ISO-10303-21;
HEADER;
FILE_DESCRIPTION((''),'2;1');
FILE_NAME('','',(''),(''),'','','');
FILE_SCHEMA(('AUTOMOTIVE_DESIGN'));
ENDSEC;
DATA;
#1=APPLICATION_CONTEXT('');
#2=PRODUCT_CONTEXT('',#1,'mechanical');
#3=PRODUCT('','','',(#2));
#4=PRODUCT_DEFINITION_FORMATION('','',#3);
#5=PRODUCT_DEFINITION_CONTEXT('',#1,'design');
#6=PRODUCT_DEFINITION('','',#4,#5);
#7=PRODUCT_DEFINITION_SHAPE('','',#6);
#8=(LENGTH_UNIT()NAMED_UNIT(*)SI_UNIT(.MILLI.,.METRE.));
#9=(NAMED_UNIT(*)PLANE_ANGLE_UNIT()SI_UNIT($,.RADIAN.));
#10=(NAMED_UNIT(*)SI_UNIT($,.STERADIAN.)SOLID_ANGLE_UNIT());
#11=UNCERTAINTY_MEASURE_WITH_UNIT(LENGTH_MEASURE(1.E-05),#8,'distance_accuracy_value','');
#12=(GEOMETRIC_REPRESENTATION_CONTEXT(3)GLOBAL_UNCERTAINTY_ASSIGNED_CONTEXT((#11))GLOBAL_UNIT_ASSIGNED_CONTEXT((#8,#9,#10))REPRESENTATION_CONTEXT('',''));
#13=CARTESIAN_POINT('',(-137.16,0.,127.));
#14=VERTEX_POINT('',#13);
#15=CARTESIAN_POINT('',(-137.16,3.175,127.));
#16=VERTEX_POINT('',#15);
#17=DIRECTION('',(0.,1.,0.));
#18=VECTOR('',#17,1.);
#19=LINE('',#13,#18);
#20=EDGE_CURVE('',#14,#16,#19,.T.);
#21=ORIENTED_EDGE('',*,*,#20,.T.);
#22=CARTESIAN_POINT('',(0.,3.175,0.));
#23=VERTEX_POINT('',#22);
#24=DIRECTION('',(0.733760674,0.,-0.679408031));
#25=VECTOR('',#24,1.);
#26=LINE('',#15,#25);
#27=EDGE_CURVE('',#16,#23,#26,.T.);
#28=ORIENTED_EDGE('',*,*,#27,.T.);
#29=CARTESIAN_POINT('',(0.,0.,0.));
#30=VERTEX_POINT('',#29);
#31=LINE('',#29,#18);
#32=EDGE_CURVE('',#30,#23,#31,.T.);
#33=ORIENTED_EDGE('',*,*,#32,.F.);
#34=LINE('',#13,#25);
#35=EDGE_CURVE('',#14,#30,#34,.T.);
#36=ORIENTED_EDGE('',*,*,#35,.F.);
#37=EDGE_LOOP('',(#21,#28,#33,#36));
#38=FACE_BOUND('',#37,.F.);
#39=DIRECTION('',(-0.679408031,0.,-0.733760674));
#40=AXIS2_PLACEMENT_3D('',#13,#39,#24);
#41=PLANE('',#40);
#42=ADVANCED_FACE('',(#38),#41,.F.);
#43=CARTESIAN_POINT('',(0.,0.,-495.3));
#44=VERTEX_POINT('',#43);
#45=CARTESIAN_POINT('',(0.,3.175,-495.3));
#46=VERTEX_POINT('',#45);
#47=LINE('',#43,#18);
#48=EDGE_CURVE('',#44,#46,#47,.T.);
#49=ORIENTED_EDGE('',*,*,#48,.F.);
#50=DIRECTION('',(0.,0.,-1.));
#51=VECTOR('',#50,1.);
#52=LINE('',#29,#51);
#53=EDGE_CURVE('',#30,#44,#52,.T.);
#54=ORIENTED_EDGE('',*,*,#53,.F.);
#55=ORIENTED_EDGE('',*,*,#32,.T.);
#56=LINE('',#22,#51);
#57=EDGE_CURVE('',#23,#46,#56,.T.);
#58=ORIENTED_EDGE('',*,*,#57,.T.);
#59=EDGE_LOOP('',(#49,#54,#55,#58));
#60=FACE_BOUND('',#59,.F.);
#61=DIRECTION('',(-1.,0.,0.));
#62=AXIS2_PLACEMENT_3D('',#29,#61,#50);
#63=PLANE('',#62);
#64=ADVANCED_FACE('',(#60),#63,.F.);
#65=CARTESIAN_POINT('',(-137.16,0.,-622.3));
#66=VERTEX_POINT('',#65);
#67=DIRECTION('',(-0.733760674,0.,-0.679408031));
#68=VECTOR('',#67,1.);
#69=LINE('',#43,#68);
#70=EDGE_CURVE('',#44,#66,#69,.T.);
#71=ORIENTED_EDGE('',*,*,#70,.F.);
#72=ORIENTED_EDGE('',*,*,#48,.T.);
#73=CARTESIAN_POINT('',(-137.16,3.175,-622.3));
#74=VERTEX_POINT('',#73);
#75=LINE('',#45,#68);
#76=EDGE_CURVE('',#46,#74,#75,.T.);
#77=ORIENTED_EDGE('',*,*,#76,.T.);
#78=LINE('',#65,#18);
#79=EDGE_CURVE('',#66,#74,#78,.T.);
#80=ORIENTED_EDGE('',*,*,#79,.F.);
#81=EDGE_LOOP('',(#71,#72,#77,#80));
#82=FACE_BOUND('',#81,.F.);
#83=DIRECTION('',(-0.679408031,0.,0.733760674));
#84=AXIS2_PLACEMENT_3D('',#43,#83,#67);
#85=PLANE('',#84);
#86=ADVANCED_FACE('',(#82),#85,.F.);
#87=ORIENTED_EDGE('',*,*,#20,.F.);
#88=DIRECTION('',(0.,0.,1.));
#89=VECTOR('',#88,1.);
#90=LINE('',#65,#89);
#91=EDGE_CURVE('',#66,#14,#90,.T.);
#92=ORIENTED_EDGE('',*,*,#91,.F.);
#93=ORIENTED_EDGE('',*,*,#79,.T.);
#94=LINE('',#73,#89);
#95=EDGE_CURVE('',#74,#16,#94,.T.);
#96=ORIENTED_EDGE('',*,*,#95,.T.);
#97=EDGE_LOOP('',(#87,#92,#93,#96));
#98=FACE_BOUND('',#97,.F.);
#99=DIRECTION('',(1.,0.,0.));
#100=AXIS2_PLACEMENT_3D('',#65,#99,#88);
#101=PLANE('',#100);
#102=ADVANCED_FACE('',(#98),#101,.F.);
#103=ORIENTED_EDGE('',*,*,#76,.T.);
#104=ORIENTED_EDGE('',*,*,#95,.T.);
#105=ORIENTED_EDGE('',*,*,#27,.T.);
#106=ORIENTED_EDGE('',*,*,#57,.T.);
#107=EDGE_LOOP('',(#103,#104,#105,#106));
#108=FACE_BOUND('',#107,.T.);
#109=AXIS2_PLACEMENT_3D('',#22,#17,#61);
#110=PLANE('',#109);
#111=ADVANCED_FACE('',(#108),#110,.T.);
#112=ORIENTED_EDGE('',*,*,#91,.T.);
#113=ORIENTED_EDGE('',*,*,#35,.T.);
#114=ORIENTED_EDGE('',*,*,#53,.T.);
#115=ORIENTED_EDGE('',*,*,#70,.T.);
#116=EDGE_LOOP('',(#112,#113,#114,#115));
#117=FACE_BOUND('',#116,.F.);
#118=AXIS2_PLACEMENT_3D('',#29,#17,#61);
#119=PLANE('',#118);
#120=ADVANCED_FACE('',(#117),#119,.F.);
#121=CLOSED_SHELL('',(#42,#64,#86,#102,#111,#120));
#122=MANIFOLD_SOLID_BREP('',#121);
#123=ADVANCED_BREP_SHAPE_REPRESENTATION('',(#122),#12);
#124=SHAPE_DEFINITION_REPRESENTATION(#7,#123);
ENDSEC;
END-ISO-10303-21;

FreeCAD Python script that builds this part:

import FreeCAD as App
import Part
import Sketcher
Q = App.Units.Quantity


def add_polygon(sketch, points):
    """Adds a closed chain of lines whose ends are joined by coincident constraints."""
    first, n = sketch.GeometryCount, len(points)
    for a, b in zip(points, points[1:] + points[:1]):
        sketch.addGeometry(Part.LineSegment(App.Vector(*a, 0), App.Vector(*b, 0)), False)
    for i in range(n):
        sketch.addConstraint(Sketcher.Constraint("Coincident", first + i, 2, first + (i + 1) % n, 1))

doc = App.newDocument("Part")
params = doc.addObject("Spreadsheet::Sheet", "Params")
for row, (alias, value) in enumerate([
    ("sketch1_height", "19.5 in"),
    ("sketch1_height2", "29.5 in"),
    ("pad1_length", "0.125 in"),
], start=1):
    params.set(f"A{row}", alias)
    params.set(f"B{row}", "=" + value)
    params.setAlias(f"B{row}", alias)

body = doc.addObject("PartDesign::Body", "Body")

sketch1 = body.newObject("Sketcher::SketchObject", "Sketch")
sketch1.AttachmentSupport = (doc.getObject("XZ_Plane"), [""])
sketch1.MapMode = "FlatFace"
add_polygon(sketch1, [(-137, 127), (0, 0), (0, -495), (-137, -622)])
sketch1.addConstraint(Sketcher.Constraint("Vertical", 1))
sketch1.addConstraint(Sketcher.Constraint("Vertical", 3))
sketch1.addConstraint(Sketcher.Constraint("Coincident", 0, 2, -1, 1))
sketch1.addConstraint(Sketcher.Constraint("Equal", 0, 2))
sketch1.addConstraint(Sketcher.Constraint("DistanceY", 1, 2, 1, 1, Q("19.5 in")))
sketch1.addConstraint(Sketcher.Constraint("DistanceY", 3, 1, 3, 2, Q("29.5 in")))
sketch1.addConstraint(Sketcher.Constraint("DistanceX", 2, 2, -1, 1, Q("5.4 in")))
sketch1.setExpression("Constraints[8]", "Params.sketch1_height")
sketch1.setExpression("Constraints[9]", "Params.sketch1_height2")
pad1 = body.newObject("PartDesign::Pad", "Pad")
pad1.Profile = sketch1
pad1.setExpression("Length", "Params.pad1_length")
pad1.Reversed = True

doc.recompute()
